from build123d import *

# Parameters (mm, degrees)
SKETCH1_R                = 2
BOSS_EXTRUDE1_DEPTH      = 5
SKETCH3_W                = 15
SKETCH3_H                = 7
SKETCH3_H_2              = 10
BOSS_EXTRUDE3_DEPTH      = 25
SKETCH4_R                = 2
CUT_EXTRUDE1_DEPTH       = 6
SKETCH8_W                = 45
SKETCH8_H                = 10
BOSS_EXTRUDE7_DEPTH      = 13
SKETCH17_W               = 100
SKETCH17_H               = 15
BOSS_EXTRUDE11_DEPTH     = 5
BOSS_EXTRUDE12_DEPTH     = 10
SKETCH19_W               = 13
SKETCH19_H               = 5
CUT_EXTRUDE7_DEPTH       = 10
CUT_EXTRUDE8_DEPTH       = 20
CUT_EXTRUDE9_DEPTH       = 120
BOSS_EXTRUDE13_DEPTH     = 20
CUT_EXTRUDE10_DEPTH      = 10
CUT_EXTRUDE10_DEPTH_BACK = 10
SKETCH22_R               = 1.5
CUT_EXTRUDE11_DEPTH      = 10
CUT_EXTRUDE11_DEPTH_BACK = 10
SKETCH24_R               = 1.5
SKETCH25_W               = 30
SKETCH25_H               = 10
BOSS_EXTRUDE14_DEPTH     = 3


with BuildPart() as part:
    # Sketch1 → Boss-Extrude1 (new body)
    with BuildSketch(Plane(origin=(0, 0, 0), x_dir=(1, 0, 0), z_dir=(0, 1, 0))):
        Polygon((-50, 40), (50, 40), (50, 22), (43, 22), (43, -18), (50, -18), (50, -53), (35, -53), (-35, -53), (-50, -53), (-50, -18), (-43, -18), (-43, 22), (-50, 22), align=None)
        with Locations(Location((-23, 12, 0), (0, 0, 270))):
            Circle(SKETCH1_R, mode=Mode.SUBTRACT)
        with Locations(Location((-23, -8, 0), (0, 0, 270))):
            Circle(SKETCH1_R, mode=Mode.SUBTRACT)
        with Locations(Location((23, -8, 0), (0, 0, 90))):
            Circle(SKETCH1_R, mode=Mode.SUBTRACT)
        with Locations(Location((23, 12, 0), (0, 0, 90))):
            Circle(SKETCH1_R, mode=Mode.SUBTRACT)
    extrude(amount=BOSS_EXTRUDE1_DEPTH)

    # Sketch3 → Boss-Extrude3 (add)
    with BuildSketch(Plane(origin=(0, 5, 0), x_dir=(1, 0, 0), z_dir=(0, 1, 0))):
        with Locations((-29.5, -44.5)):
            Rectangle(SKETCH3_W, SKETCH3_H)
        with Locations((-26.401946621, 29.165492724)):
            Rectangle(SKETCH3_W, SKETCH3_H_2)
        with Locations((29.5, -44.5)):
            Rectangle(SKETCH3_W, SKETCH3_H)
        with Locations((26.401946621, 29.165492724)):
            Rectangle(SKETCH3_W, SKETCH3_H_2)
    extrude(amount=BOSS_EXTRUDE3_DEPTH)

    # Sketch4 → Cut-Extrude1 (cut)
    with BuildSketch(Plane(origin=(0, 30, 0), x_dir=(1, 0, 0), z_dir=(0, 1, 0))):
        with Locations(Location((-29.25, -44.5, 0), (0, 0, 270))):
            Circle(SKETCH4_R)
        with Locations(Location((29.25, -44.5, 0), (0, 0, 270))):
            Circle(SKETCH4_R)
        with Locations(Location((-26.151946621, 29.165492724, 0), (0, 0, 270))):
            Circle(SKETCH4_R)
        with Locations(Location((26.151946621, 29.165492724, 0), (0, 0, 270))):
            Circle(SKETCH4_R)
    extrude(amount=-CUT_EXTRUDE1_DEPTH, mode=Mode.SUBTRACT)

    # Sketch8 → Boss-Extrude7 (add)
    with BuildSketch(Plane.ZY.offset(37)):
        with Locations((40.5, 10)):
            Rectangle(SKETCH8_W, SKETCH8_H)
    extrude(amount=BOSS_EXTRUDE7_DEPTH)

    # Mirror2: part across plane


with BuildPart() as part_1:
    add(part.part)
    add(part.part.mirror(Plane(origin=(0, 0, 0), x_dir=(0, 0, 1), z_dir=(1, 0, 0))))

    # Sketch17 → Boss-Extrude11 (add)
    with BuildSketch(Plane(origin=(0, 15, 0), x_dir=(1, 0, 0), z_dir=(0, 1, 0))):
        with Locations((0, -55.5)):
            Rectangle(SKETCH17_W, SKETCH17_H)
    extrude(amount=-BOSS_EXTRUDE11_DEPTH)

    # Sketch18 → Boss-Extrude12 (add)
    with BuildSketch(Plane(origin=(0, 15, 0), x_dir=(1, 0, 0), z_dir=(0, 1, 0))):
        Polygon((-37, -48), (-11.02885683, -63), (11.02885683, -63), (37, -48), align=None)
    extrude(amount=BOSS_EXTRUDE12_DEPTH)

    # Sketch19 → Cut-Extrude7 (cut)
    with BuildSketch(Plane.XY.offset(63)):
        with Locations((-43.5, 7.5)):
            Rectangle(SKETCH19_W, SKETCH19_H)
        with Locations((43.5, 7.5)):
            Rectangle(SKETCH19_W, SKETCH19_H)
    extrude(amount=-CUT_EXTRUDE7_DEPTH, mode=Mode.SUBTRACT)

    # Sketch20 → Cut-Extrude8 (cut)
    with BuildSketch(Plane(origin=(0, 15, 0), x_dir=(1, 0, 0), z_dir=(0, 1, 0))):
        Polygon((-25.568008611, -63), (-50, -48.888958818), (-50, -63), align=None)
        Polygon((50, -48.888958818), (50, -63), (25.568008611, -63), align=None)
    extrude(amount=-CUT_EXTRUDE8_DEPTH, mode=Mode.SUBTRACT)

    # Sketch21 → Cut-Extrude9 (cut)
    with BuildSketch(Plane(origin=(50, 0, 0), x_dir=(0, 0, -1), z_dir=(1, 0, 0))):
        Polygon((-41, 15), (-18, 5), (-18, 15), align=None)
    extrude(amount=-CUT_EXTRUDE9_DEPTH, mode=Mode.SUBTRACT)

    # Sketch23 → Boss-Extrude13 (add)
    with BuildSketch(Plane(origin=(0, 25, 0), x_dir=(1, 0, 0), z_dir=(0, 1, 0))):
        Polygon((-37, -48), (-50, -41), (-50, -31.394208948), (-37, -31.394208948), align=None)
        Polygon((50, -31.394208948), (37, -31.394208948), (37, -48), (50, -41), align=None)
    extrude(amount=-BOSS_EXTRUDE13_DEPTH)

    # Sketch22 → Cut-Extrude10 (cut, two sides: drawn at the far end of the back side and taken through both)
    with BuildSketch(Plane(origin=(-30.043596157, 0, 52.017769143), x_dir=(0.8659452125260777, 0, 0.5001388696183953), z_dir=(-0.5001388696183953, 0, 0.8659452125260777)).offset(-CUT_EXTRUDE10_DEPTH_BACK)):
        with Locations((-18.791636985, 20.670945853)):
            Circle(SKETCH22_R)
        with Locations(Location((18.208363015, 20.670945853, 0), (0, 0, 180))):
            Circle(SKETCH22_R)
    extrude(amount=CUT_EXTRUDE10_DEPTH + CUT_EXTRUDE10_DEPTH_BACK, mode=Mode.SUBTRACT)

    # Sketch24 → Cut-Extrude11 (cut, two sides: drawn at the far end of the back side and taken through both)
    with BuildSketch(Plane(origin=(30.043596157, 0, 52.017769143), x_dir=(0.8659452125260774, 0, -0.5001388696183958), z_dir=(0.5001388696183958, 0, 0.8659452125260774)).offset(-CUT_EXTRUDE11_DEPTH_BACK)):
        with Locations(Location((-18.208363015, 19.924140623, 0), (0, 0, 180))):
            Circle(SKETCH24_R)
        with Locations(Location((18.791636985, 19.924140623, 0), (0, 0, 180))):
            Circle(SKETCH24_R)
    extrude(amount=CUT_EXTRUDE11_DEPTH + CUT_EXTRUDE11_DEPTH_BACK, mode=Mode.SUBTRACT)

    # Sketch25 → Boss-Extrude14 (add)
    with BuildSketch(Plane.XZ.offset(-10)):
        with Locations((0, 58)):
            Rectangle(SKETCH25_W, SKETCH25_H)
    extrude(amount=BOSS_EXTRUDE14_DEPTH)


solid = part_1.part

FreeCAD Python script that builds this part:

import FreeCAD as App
import Part
import Sketcher
from FreeCAD import Vector


def add_polygon(sketch, points):
    """Adds a closed chain of lines whose ends are joined by coincident constraints."""
    first, n = sketch.GeometryCount, len(points)
    for a, b in zip(points, points[1:] + points[:1]):
        sketch.addGeometry(Part.LineSegment(App.Vector(*a, 0), App.Vector(*b, 0)), False)
    for i in range(n):
        sketch.addConstraint(Sketcher.Constraint("Coincident", first + i, 2, first + (i + 1) % n, 1))

doc = App.newDocument("Part")
body = doc.addObject("PartDesign::Body", "Body")

# Sketch on XZ plane
sketch1 = body.newObject("Sketcher::SketchObject", "Sketch")
sketch1.AttachmentSupport = (doc.getObject("XZ_Plane"), [""])
sketch1.MapMode = "FlatFace"
add_polygon(sketch1, [(50, -40), (-50, -40), (-50, -22), (-43, -22), (-43, 18), (-50, 18), (-50, 53), (50, 53), (50, 18), (43, 18), (43, -22), (50, -22)])  # lines 0-11
sketch1.addGeometry(Part.Circle(Vector(23, 8, 0), Vector(0, 0, 1), 2), False)  # 12
sketch1.addGeometry(Part.Circle(Vector(-23, 8, 0), Vector(0, 0, 1), 2), False)  # 13
sketch1.addGeometry(Part.Circle(Vector(23, -12, 0), Vector(0, 0, 1), 2), False)  # 14
sketch1.addGeometry(Part.Circle(Vector(-23, -12, 0), Vector(0, 0, 1), 2), False)  # 15
sketch1.addConstraint([
    Sketcher.Constraint("Horizontal", 0),
    Sketcher.Constraint("Vertical", 1),
    Sketcher.Constraint("Horizontal", 2),
    Sketcher.Constraint("Vertical", 3),
    Sketcher.Constraint("Horizontal", 4),
    Sketcher.Constraint("Vertical", 5),
    Sketcher.Constraint("Horizontal", 6),
    Sketcher.Constraint("Vertical", 7),
    Sketcher.Constraint("Horizontal", 8),
    Sketcher.Constraint("Vertical", 9),
    Sketcher.Constraint("Horizontal", 10),
    Sketcher.Constraint("Vertical", 11),
    Sketcher.Constraint("Equal", 12, 13),
    Sketcher.Constraint("Equal", 13, 14),
    Sketcher.Constraint("Equal", 14, 15),
    Sketcher.Constraint("Symmetric", 12, 3, 13, 3, -2),
    Sketcher.Constraint("Symmetric", 14, 3, 15, 3, -2),
    Sketcher.Constraint("Symmetric", 4, 2, 7, 2, -2),
    Sketcher.Constraint("Symmetric", 2, 2, 9, 2, -2),
    Sketcher.Constraint("Vertical", 12, 3, 14, 3),
    Sketcher.Constraint("Vertical", 1, 2, 4, 2),
    Sketcher.Constraint("Vertical", 7, 2, 10, 2),
    Sketcher.Constraint("Diameter", 12, 4.0),
    Sketcher.Constraint("DistanceX", 0, 2, 0, 1, 100.0),
    Sketcher.Constraint("DistanceX", 2, 1, 2, 2, 7.0),
    Sketcher.Constraint("DistanceY", 1, 1, 1, 2, 18.0),
    Sketcher.Constraint("DistanceY", 3, 1, 3, 2, 40.0),
    Sketcher.Constraint("DistanceY", 5, 1, 5, 2, 35.0),
    Sketcher.Constraint("DistanceX", -1, 1, 12, 3, 23.0),
    Sketcher.Constraint("DistanceY", -1, 1, 12, 3, 8.0),
    Sketcher.Constraint("DistanceY", 14, 3, -1, 1, 12.0),
    Sketcher.Constraint("DistanceY", 0, 2, -1, 1, 40.0),
])
pad1 = body.newObject("PartDesign::Pad", "Pad")
pad1.Profile = sketch1
pad1.Length = 5
pad1.Reversed = True

# Sketch on XZ plane
sketch2 = body.newObject("Sketcher::SketchObject", "Sketch001")
sketch2.AttachmentSupport = (doc.getObject("XZ_Plane"), [""])
sketch2.MapMode = "FlatFace"
sketch2.AttachmentOffset = App.Placement(Vector(0, 0, -5), App.Rotation())
add_polygon(sketch2, [(-37, 41), (-37, 48), (-22, 48), (-22, 41)])  # lines 0-3
add_polygon(sketch2, [(-33.901947, -34.165493), (-33.901947, -24.165493), (-18.901947, -24.165493), (-18.901947, -34.165493)])  # lines 4-7
add_polygon(sketch2, [(22, 41), (22, 48), (37, 48), (37, 41)])  # lines 8-11
add_polygon(sketch2, [(18.901947, -34.165493), (18.901947, -24.165493), (33.901947, -24.165493), (33.901947, -34.165493)])  # lines 12-15
sketch2.addConstraint([
    Sketcher.Constraint("Vertical", 0),
    Sketcher.Constraint("Horizontal", 1),
    Sketcher.Constraint("Vertical", 2),
    Sketcher.Constraint("Horizontal", 3),
    Sketcher.Constraint("Vertical", 4),
    Sketcher.Constraint("Horizontal", 5),
    Sketcher.Constraint("Vertical", 6),
    Sketcher.Constraint("Horizontal", 7),
    Sketcher.Constraint("Vertical", 8),
    Sketcher.Constraint("Horizontal", 9),
    Sketcher.Constraint("Vertical", 10),
    Sketcher.Constraint("Horizontal", 11),
    Sketcher.Constraint("Vertical", 12),
    Sketcher.Constraint("Horizontal", 13),
    Sketcher.Constraint("Vertical", 14),
    Sketcher.Constraint("Horizontal", 15),
    Sketcher.Constraint("Symmetric", 1, 2, 8, 2, -2),
    Sketcher.Constraint("Symmetric", 3, 2, 10, 2, -2),
    Sketcher.Constraint("Symmetric", 5, 2, 12, 2, -2),
    Sketcher.Constraint("Symmetric", 7, 2, 14, 2, -2),
    Sketcher.Constraint("Equal", 3, 5),
    Sketcher.Constraint("DistanceX", 1, 1, 1, 2, 15.0),
    Sketcher.Constraint("DistanceY", 0, 1, 0, 2, 7.0),
    Sketcher.Constraint("DistanceY", 4, 1, 4, 2, 10.0),
    Sketcher.Constraint("DistanceX", 0, 2, -1, 1, 37.0),
    Sketcher.Constraint("DistanceY", -1, 1, 0, 2, 48.0),
    Sketcher.Constraint("DistanceX", 4, 2, -1, 1, 33.901947),
    Sketcher.Constraint("DistanceY", 4, 2, -1, 1, 24.165493),
])
pad2 = body.newObject("PartDesign::Pad", "Pad001")
pad2.Profile = sketch2
pad2.Length = 25
pad2.Reversed = True

# Sketch on XZ plane
sketch3 = body.newObject("Sketcher::SketchObject", "Sketch002")
sketch3.AttachmentSupport = (doc.getObject("XZ_Plane"), [""])
sketch3.MapMode = "FlatFace"
sketch3.AttachmentOffset = App.Placement(Vector(0, 0, -30), App.Rotation())
sketch3.addGeometry([
    Part.Circle(Vector(-29.25, 44.5, 0), Vector(0, 0, 1), 2),
    Part.Circle(Vector(29.25, 44.5, 0), Vector(0, 0, 1), 2),
    Part.Circle(Vector(-26.151947, -29.165493, 0), Vector(0, 0, 1), 2),
    Part.Circle(Vector(26.151947, -29.165493, 0), Vector(0, 0, 1), 2),
], False)
sketch3.addConstraint([
    Sketcher.Constraint("Equal", 0, 1),
    Sketcher.Constraint("Equal", 1, 2),
    Sketcher.Constraint("Equal", 2, 3),
    Sketcher.Constraint("Symmetric", 0, 3, 1, 3, -2),
    Sketcher.Constraint("Symmetric", 2, 3, 3, 3, -2),
    Sketcher.Constraint("Diameter", 0, 4.0),
    Sketcher.Constraint("DistanceY", -1, 1, 0, 3, 44.5),
    Sketcher.Constraint("DistanceX", 0, 3, 1, 3, 58.5),
    Sketcher.Constraint("DistanceX", 2, 3, -1, 1, 26.151947),
    Sketcher.Constraint("DistanceY", 2, 3, -1, 1, 29.165493),
])
pocket1 = body.newObject("PartDesign::Pocket", "Pocket")
pocket1.Profile = sketch3
pocket1.Length = 6
pocket1.Reversed = True

# Sketch on YZ plane
sketch4 = body.newObject("Sketcher::SketchObject", "Sketch003")
sketch4.AttachmentSupport = (doc.getObject("YZ_Plane"), [""])
sketch4.MapMode = "FlatFace"
sketch4.AttachmentOffset = App.Placement(Vector(0, 0, -37), App.Rotation())
add_polygon(sketch4, [(15, 18), (5, 18), (5, 63), (15, 63)])  # lines 0-3
sketch4.addConstraint([
    Sketcher.Constraint("Horizontal", 0),
    Sketcher.Constraint("Vertical", 1),
    Sketcher.Constraint("Horizontal", 2),
    Sketcher.Constraint("Vertical", 3),
    Sketcher.Constraint("DistanceX", 0, 2, 0, 1, 10.0),
    Sketcher.Constraint("DistanceY", 1, 1, 1, 2, 45.0),
    Sketcher.Constraint("DistanceX", -1, 1, 0, 2, 5.0),
    Sketcher.Constraint("DistanceY", -1, 1, 0, 2, 18.0),
])
pad3 = body.newObject("PartDesign::Pad", "Pad002")
pad3.Profile = sketch4
pad3.Length = 13
pad3.Reversed = True
body2 = doc.addObject("PartDesign::Body", "Body001")
doc.recompute()

body2.BaseFeature = body
doc.recompute()

mirroring = doc.addObject("Part::Mirroring", "Mirroring")
mirroring.Source = body
mirroring.Base = Vector(0, 0, 0)
mirroring.Normal = Vector(1, 0, 0)
body3 = doc.addObject("PartDesign::Body", "Body002")
body3.BaseFeature = mirroring
boolean = body2.newObject("PartDesign::Boolean", "Boolean")
boolean.Type = "Fuse"
boolean.addObjects([body3])
doc.recompute()

# Sketch on XZ plane
sketch5 = body2.newObject("Sketcher::SketchObject", "Sketch004")
sketch5.AttachmentSupport = (doc.getObject("XZ_Plane001"), [""])
sketch5.MapMode = "FlatFace"
sketch5.AttachmentOffset = App.Placement(Vector(0, 0, -15), App.Rotation())
add_polygon(sketch5, [(-50, 48), (-50, 63), (50, 63), (50, 48)])  # lines 0-3
sketch5.addConstraint([
    Sketcher.Constraint("Vertical", 0),
    Sketcher.Constraint("Horizontal", 1),
    Sketcher.Constraint("Vertical", 2),
    Sketcher.Constraint("Horizontal", 3),
    Sketcher.Constraint("DistanceX", 1, 1, 1, 2, 100.0),
    Sketcher.Constraint("DistanceY", 0, 1, 0, 2, 15.0),
    Sketcher.Constraint("DistanceX", 0, 2, -1, 1, 50.0),
    Sketcher.Constraint("DistanceY", -1, 1, 0, 2, 63.0),
])
pad4 = body2.newObject("PartDesign::Pad", "Pad003")
pad4.Profile = sketch5
pad4.Length = 5

# Sketch on XZ plane
sketch6 = body2.newObject("Sketcher::SketchObject", "Sketch005")
sketch6.AttachmentSupport = (doc.getObject("XZ_Plane001"), [""])
sketch6.MapMode = "FlatFace"
sketch6.AttachmentOffset = App.Placement(Vector(0, 0, -15), App.Rotation())
add_polygon(sketch6, [(-37, 48), (-11.028857, 63), (11.028857, 63), (37, 48)])  # lines 0-3
sketch6.addConstraint([
    Sketcher.Constraint("Horizontal", 1),
    Sketcher.Constraint("Horizontal", 3),
    Sketcher.Constraint("Equal", 0, 2),
    Sketcher.Constraint("DistanceX", 3, 2, 3, 1, 74.0),
    Sketcher.Constraint("DistanceY", -1, 1, 0, 2, 63.0),
    Sketcher.Constraint("DistanceX", -1, 1, 2, 2, 37.0),
    Sketcher.Constraint("DistanceY", -1, 1, 2, 2, 48.0),
    Sketcher.Constraint("Distance", 0, 29.99167),
])
pad5 = body2.newObject("PartDesign::Pad", "Pad004")
pad5.Profile = sketch6
pad5.Length = 10
pad5.Reversed = True

# Sketch on XY plane
sketch7 = body2.newObject("Sketcher::SketchObject", "Sketch006")
sketch7.AttachmentSupport = (doc.getObject("XY_Plane001"), [""])
sketch7.MapMode = "FlatFace"
sketch7.AttachmentOffset = App.Placement(Vector(0, 0, 63), App.Rotation())
add_polygon(sketch7, [(-50, 10), (-50, 5), (-37, 5), (-37, 10)])  # lines 0-3
add_polygon(sketch7, [(37, 10), (37, 5), (50, 5), (50, 10)])  # lines 4-7
sketch7.addConstraint([
    Sketcher.Constraint("Vertical", 0),
    Sketcher.Constraint("Horizontal", 1),
    Sketcher.Constraint("Vertical", 2),
    Sketcher.Constraint("Horizontal", 3),
    Sketcher.Constraint("Vertical", 4),
    Sketcher.Constraint("Horizontal", 5),
    Sketcher.Constraint("Vertical", 6),
    Sketcher.Constraint("Horizontal", 7),
    Sketcher.Constraint("Symmetric", 1, 2, 4, 2, -2),
    Sketcher.Constraint("Symmetric", 3, 2, 6, 2, -2),
    Sketcher.Constraint("DistanceX", 1, 1, 1, 2, 13.0),
    Sketcher.Constraint("DistanceY", 0, 2, 0, 1, 5.0),
    Sketcher.Constraint("DistanceX", 0, 2, -1, 1, 50.0),
    Sketcher.Constraint("DistanceY", -1, 1, 0, 2, 5.0),
])
pocket2 = body2.newObject("PartDesign::Pocket", "Pocket001")
pocket2.Profile = sketch7
pocket2.Length = 10

# Sketch on XZ plane
sketch8 = body2.newObject("Sketcher::SketchObject", "Sketch007")
sketch8.AttachmentSupport = (doc.getObject("XZ_Plane001"), [""])
sketch8.MapMode = "FlatFace"
sketch8.AttachmentOffset = App.Placement(Vector(0, 0, -15), App.Rotation())
add_polygon(sketch8, [(-25.568009, 63), (-50, 48.888959), (-50, 63)])  # lines 0-2
add_polygon(sketch8, [(50, 63), (50, 48.888959), (25.568009, 63)])  # lines 3-5
sketch8.addConstraint([
    Sketcher.Constraint("Vertical", 1),
    Sketcher.Constraint("Horizontal", 2),
    Sketcher.Constraint("Vertical", 3),
    Sketcher.Constraint("Horizontal", 5),
    Sketcher.Constraint("Symmetric", 0, 2, 3, 2, -2),
    Sketcher.Constraint("Symmetric", 2, 2, 4, 2, -2),
    Sketcher.Constraint("DistanceX", 0, 2, -1, 1, 50.0),
    Sketcher.Constraint("DistanceY", -1, 1, 1, 2, 63.0),
    Sketcher.Constraint("DistanceX", 2, 1, 2, 2, 24.431991),
    Sketcher.Constraint("DistanceY", 1, 1, 1, 2, 14.111041),
])
pocket3 = body2.newObject("PartDesign::Pocket", "Pocket002")
pocket3.Profile = sketch8
pocket3.Length = 20
pocket3.Reversed = True

# Sketch on YZ plane
sketch9 = body2.newObject("Sketcher::SketchObject", "Sketch008")
sketch9.AttachmentSupport = (doc.getObject("YZ_Plane001"), [""])
sketch9.MapMode = "FlatFace"
sketch9.AttachmentOffset = App.Placement(Vector(0, 0, 50), App.Rotation())
add_polygon(sketch9, [(15, 41), (5, 18), (15, 18)])  # lines 0-2
sketch9.addConstraint([
    Sketcher.Constraint("Horizontal", 1),
    Sketcher.Constraint("Vertical", 2),
    Sketcher.Constraint("DistanceX", 1, 1, 1, 2, 10.0),
    Sketcher.Constraint("DistanceY", 2, 1, 2, 2, 23.0),
    Sketcher.Constraint("DistanceX", -1, 1, 0, 2, 5.0),
    Sketcher.Constraint("DistanceY", -1, 1, 0, 2, 18.0),
])
pocket4 = body2.newObject("PartDesign::Pocket", "Pocket003")
pocket4.Profile = sketch9
pocket4.Length = 120

# Sketch on XZ plane
sketch10 = body2.newObject("Sketcher::SketchObject", "Sketch009")
sketch10.AttachmentSupport = (doc.getObject("XZ_Plane001"), [""])
sketch10.MapMode = "FlatFace"
sketch10.AttachmentOffset = App.Placement(Vector(0, 0, -25), App.Rotation())
add_polygon(sketch10, [(-50, 41), (-37, 48), (-37, 31.394209), (-50, 31.394209)])  # lines 0-3
add_polygon(sketch10, [(50, 31.394209), (37, 31.394209), (37, 48), (50, 41)])  # lines 4-7
sketch10.addConstraint([
    Sketcher.Constraint("Vertical", 1),
    Sketcher.Constraint("Horizontal", 2),
    Sketcher.Constraint("Vertical", 3),
    Sketcher.Constraint("Horizontal", 4),
    Sketcher.Constraint("Vertical", 5),
    Sketcher.Constraint("Vertical", 7),
    Sketcher.Constraint("Symmetric", 1, 2, 4, 2, -2),
    Sketcher.Constraint("Symmetric", 3, 2, 6, 2, -2),
    Sketcher.Constraint("Horizontal", 0, 2, 5, 2),
    Sketcher.Constraint("DistanceX", 2, 2, 2, 1, 13.0),
    Sketcher.Constraint("DistanceX", 0, 2, -1, 1, 37.0),
    Sketcher.Constraint("DistanceY", -1, 1, 0, 2, 48.0),
    Sketcher.Constraint("DistanceY", -1, 1, 3, 2, 41.0),
    Sketcher.Constraint("DistanceY", 1, 2, 1, 1, 16.605791),
])
pad6 = body2.newObject("PartDesign::Pad", "Pad005")
pad6.Profile = sketch10
pad6.Length = 20

# Sketch on an angled plane
sketch11 = body2.newObject("Sketcher::SketchObject", "Sketch010")
sketch11.Placement = App.Placement(Vector(-30.043596, 0, 52.017769), App.Rotation(Vector(0.865945213, 0, 0.50013887), Vector(0, 1.000000001, 0), Vector(-0.50013887, 0, 0.865945213), "ZXY"))
sketch11.addGeometry([
    Part.Circle(Vector(-18.791637, 20.670946, 0), Vector(0, 0, 1), 1.5),
    Part.Circle(Vector(18.208363, 20.670946, 0), Vector(0, 0, 1), 1.5),
], False)
sketch11.addConstraint([
    Sketcher.Constraint("Equal", 0, 1),
    Sketcher.Constraint("Horizontal", 0, 3, 1, 3),
    Sketcher.Constraint("Diameter", 0, 3.0),
    Sketcher.Constraint("DistanceX", 0, 3, 1, 3, 37.0),
    Sketcher.Constraint("DistanceX", 0, 3, -1, 1, 18.791637),
    Sketcher.Constraint("DistanceY", -1, 1, 0, 3, 20.670946),
])
pocket5 = body2.newObject("PartDesign::Pocket", "Pocket004")
pocket5.Profile = sketch11
pocket5.Type = "TwoLengths"
pocket5.Length = 10
pocket5.Length2 = 10
pocket5.Reversed = True

# Sketch on an angled plane
sketch12 = body2.newObject("Sketcher::SketchObject", "Sketch011")
sketch12.Placement = App.Placement(Vector(30.043596, 0, 52.017769), App.Rotation(Vector(0.865945213, 0, -0.50013887), Vector(0, 1.000000001, 0), Vector(0.50013887, 0, 0.865945213), "ZXY"))
sketch12.addGeometry([
    Part.Circle(Vector(-18.208363, 19.924141, 0), Vector(0, 0, 1), 1.5),
    Part.Circle(Vector(18.791637, 19.924141, 0), Vector(0, 0, 1), 1.5),
], False)
sketch12.addConstraint([
    Sketcher.Constraint("Equal", 0, 1),
    Sketcher.Constraint("Horizontal", 0, 3, 1, 3),
    Sketcher.Constraint("Diameter", 0, 3.0),
    Sketcher.Constraint("DistanceX", 0, 3, 1, 3, 37.0),
    Sketcher.Constraint("DistanceY", -1, 1, 0, 3, 19.924141),
    Sketcher.Constraint("DistanceX", 0, 3, -1, 1, 18.208363),
])
pocket6 = body2.newObject("PartDesign::Pocket", "Pocket005")
pocket6.Profile = sketch12
pocket6.Type = "TwoLengths"
pocket6.Length = 10
pocket6.Length2 = 10
pocket6.Reversed = True

# Sketch on XZ plane
sketch13 = body2.newObject("Sketcher::SketchObject", "Sketch012")
sketch13.AttachmentSupport = (doc.getObject("XZ_Plane001"), [""])
sketch13.MapMode = "FlatFace"
sketch13.AttachmentOffset = App.Placement(Vector(0, 0, -10), App.Rotation())
add_polygon(sketch13, [(-15, 63), (-15, 53), (15, 53), (15, 63)])  # lines 0-3
sketch13.addConstraint([
    Sketcher.Constraint("Vertical", 0),
    Sketcher.Constraint("Horizontal", 1),
    Sketcher.Constraint("Vertical", 2),
    Sketcher.Constraint("Horizontal", 3),
    Sketcher.Constraint("DistanceX", 1, 1, 1, 2, 30.0),
    Sketcher.Constraint("DistanceY", 0, 2, 0, 1, 10.0),
    Sketcher.Constraint("DistanceX", 0, 2, -1, 1, 15.0),
    Sketcher.Constraint("DistanceY", -1, 1, 0, 2, 53.0),
])
pad7 = body2.newObject("PartDesign::Pad", "Pad006")
pad7.Profile = sketch13
pad7.Length = 3
mirroring.Visibility = False

doc.recompute()
